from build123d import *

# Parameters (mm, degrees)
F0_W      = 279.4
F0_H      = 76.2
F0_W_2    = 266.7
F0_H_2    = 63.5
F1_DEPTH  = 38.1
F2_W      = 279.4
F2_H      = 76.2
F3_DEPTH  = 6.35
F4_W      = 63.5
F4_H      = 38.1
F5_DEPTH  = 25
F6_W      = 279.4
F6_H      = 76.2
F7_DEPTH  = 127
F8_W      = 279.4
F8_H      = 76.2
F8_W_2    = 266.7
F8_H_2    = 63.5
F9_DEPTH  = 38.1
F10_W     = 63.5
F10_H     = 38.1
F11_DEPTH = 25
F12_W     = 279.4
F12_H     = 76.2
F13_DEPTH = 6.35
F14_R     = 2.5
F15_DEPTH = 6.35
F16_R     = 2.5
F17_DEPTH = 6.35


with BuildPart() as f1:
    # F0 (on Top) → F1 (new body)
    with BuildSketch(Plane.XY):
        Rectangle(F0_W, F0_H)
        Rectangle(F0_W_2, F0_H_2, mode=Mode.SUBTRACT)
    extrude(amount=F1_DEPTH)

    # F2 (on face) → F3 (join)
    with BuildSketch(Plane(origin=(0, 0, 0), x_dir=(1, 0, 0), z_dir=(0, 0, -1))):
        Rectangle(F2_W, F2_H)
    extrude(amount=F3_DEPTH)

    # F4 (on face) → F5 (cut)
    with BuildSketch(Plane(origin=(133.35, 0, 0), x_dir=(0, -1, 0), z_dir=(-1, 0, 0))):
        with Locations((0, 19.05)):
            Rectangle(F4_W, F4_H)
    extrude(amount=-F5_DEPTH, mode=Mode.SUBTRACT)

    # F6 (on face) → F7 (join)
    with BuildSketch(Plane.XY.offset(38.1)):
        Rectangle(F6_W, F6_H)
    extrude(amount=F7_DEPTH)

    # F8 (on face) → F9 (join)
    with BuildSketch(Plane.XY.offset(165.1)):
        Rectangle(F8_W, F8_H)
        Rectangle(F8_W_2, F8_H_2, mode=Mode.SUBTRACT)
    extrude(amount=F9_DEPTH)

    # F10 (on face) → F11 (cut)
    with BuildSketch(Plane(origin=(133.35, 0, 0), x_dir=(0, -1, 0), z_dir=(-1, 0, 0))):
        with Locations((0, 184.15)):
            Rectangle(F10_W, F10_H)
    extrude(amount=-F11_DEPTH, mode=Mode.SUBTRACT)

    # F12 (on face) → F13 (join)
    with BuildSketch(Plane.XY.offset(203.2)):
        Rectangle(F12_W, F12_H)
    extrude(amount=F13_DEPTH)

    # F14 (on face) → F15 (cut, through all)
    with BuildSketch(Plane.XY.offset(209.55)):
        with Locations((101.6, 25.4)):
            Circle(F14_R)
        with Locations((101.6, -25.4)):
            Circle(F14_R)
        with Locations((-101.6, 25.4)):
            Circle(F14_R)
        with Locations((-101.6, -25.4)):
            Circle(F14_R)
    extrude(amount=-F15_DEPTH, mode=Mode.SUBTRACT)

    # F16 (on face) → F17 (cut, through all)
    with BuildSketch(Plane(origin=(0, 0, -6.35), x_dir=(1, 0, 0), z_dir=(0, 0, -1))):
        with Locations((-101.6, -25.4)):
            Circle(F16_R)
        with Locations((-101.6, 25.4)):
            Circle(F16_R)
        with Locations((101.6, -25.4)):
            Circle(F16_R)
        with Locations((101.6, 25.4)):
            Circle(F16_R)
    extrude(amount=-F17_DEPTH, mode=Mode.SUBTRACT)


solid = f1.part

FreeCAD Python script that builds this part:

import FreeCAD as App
import Part
import Sketcher

V = App.Vector
Q = App.Units.Quantity

doc = App.newDocument("Part")
body = doc.addObject("PartDesign::Body", "Body")

# Sketch on XY plane
sketch1 = body.newObject("Sketcher::SketchObject", "Sketch")
sketch1.AttachmentSupport = (doc.getObject("XY_Plane"), [""])
sketch1.MapMode = "FlatFace"
sketch1.addGeometry([
    Part.LineSegment(V(-140, 38, 0), V(-140, -38, 0)),  # 0
    Part.LineSegment(V(-140, -38, 0), V(140, -38, 0)),  # 1
    Part.LineSegment(V(140, -38, 0), V(140, 38, 0)),  # 2
    Part.LineSegment(V(140, 38, 0), V(-140, 38, 0)),  # 3
    Part.LineSegment(V(133, -32, 0), V(-133, -32, 0)),  # 4
    Part.LineSegment(V(-133, -32, 0), V(-133, 32, 0)),  # 5
    Part.LineSegment(V(-133, 32, 0), V(133, 32, 0)),  # 6
    Part.LineSegment(V(133, 32, 0), V(133, -32, 0)),  # 7
], False)
sketch1.addConstraint([
    Sketcher.Constraint("Coincident", 0, 2, 1, 1),
    Sketcher.Constraint("Coincident", 1, 2, 2, 1),
    Sketcher.Constraint("Coincident", 2, 2, 3, 1),
    Sketcher.Constraint("Coincident", 3, 2, 0, 1),
    Sketcher.Constraint("Coincident", 4, 2, 5, 1),
    Sketcher.Constraint("Coincident", 5, 2, 6, 1),
    Sketcher.Constraint("Coincident", 6, 2, 7, 1),
    Sketcher.Constraint("Coincident", 7, 2, 4, 1),
    Sketcher.Constraint("Vertical", 0),
    Sketcher.Constraint("Horizontal", 1),
    Sketcher.Constraint("Vertical", 2),
    Sketcher.Constraint("Horizontal", 3),
    Sketcher.Constraint("Horizontal", 4),
    Sketcher.Constraint("Vertical", 5),
    Sketcher.Constraint("Horizontal", 6),
    Sketcher.Constraint("Vertical", 7),
    Sketcher.Constraint("Symmetric", 0, 2, 2, 2, -1, 1),
    Sketcher.Constraint("Symmetric", 4, 2, 6, 2, -1, 1),
    Sketcher.Constraint("DistanceX", 1, 1, 1, 2, Q("11 in")),
    Sketcher.Constraint("DistanceY", 0, 2, 0, 1, Q("3 in")),
    Sketcher.Constraint("DistanceX", 4, 2, 4, 1, Q("10.5 in")),
    Sketcher.Constraint("DistanceY", 5, 1, 5, 2, Q("2.5 in")),
])
pad1 = body.newObject("PartDesign::Pad", "Pad")
pad1.Profile = sketch1
pad1.Length = Q("1.5 in")

# Sketch on XY plane
sketch2 = body.newObject("Sketcher::SketchObject", "Sketch001")
sketch2.AttachmentSupport = (doc.getObject("XY_Plane"), [""])
sketch2.MapMode = "FlatFace"
sketch2.addGeometry([
    Part.LineSegment(V(-140, -38, 0), V(-140, 38, 0)),
    Part.LineSegment(V(-140, 38, 0), V(140, 38, 0)),
    Part.LineSegment(V(140, 38, 0), V(140, -38, 0)),
    Part.LineSegment(V(140, -38, 0), V(-140, -38, 0)),
], False)
sketch2.addConstraint([
    Sketcher.Constraint("Coincident", 0, 2, 1, 1),
    Sketcher.Constraint("Coincident", 1, 2, 2, 1),
    Sketcher.Constraint("Coincident", 2, 2, 3, 1),
    Sketcher.Constraint("Coincident", 3, 2, 0, 1),
    Sketcher.Constraint("Vertical", 0),
    Sketcher.Constraint("Horizontal", 1),
    Sketcher.Constraint("Vertical", 2),
    Sketcher.Constraint("Horizontal", 3),
    Sketcher.Constraint("Symmetric", 0, 2, 2, 2, -1, 1),
    Sketcher.Constraint("DistanceX", 1, 1, 1, 2, Q("11 in")),
    Sketcher.Constraint("DistanceY", 0, 1, 0, 2, Q("3 in")),
])
pad2 = body.newObject("PartDesign::Pad", "Pad001")
pad2.Profile = sketch2
pad2.Length = Q("0.25 in")
pad2.Reversed = True

# Sketch on YZ plane
sketch3 = body.newObject("Sketcher::SketchObject", "Sketch002")
sketch3.AttachmentSupport = (doc.getObject("YZ_Plane"), [""])
sketch3.MapMode = "FlatFace"
sketch3.AttachmentOffset = App.Placement(V(0, 0, 5.25 * 25.4), App.Rotation())
sketch3.addGeometry([
    Part.LineSegment(V(32, 38, 0), V(32, 0, 0)),
    Part.LineSegment(V(32, 0, 0), V(-32, 0, 0)),
    Part.LineSegment(V(-32, 0, 0), V(-32, 38, 0)),
    Part.LineSegment(V(-32, 38, 0), V(32, 38, 0)),
], False)
sketch3.addConstraint([
    Sketcher.Constraint("Coincident", 0, 2, 1, 1),
    Sketcher.Constraint("Coincident", 1, 2, 2, 1),
    Sketcher.Constraint("Coincident", 2, 2, 3, 1),
    Sketcher.Constraint("Coincident", 3, 2, 0, 1),
    Sketcher.Constraint("Vertical", 0),
    Sketcher.Constraint("Horizontal", 1),
    Sketcher.Constraint("Vertical", 2),
    Sketcher.Constraint("Horizontal", 3),
    Sketcher.Constraint("Symmetric", 0, 2, 1, 2, -1, 1),
    Sketcher.Constraint("DistanceX", 1, 2, 1, 1, Q("2.5 in")),
    Sketcher.Constraint("DistanceY", 0, 2, 0, 1, Q("1.5 in")),
])
pocket1 = body.newObject("PartDesign::Pocket", "Pocket")
pocket1.Profile = sketch3
pocket1.Length = 25
pocket1.Reversed = True

# Sketch on XY plane
sketch4 = body.newObject("Sketcher::SketchObject", "Sketch003")
sketch4.AttachmentSupport = (doc.getObject("XY_Plane"), [""])
sketch4.MapMode = "FlatFace"
sketch4.AttachmentOffset = App.Placement(V(0, 0, 1.5 * 25.4), App.Rotation())
sketch4.addGeometry([
    Part.LineSegment(V(-140, 38, 0), V(-140, -38, 0)),
    Part.LineSegment(V(-140, -38, 0), V(140, -38, 0)),
    Part.LineSegment(V(140, -38, 0), V(140, 38, 0)),
    Part.LineSegment(V(140, 38, 0), V(-140, 38, 0)),
], False)
sketch4.addConstraint([
    Sketcher.Constraint("Coincident", 0, 2, 1, 1),
    Sketcher.Constraint("Coincident", 1, 2, 2, 1),
    Sketcher.Constraint("Coincident", 2, 2, 3, 1),
    Sketcher.Constraint("Coincident", 3, 2, 0, 1),
    Sketcher.Constraint("Vertical", 0),
    Sketcher.Constraint("Horizontal", 1),
    Sketcher.Constraint("Vertical", 2),
    Sketcher.Constraint("Horizontal", 3),
    Sketcher.Constraint("Symmetric", 0, 2, 2, 2, -1, 1),
    Sketcher.Constraint("DistanceX", 1, 1, 1, 2, Q("11 in")),
    Sketcher.Constraint("DistanceY", 0, 2, 0, 1, Q("3 in")),
])
pad3 = body.newObject("PartDesign::Pad", "Pad002")
pad3.Profile = sketch4
pad3.Length = Q("5 in")

# Sketch on XY plane
sketch5 = body.newObject("Sketcher::SketchObject", "Sketch004")
sketch5.AttachmentSupport = (doc.getObject("XY_Plane"), [""])
sketch5.MapMode = "FlatFace"
sketch5.AttachmentOffset = App.Placement(V(0, 0, 6.5 * 25.4), App.Rotation())
sketch5.addGeometry([
    Part.LineSegment(V(-140, 38, 0), V(-140, -38, 0)),  # 0
    Part.LineSegment(V(-140, -38, 0), V(140, -38, 0)),  # 1
    Part.LineSegment(V(140, -38, 0), V(140, 38, 0)),  # 2
    Part.LineSegment(V(140, 38, 0), V(-140, 38, 0)),  # 3
    Part.LineSegment(V(133, -32, 0), V(-133, -32, 0)),  # 4
    Part.LineSegment(V(-133, -32, 0), V(-133, 32, 0)),  # 5
    Part.LineSegment(V(-133, 32, 0), V(133, 32, 0)),  # 6
    Part.LineSegment(V(133, 32, 0), V(133, -32, 0)),  # 7
], False)
sketch5.addConstraint([
    Sketcher.Constraint("Coincident", 0, 2, 1, 1),
    Sketcher.Constraint("Coincident", 1, 2, 2, 1),
    Sketcher.Constraint("Coincident", 2, 2, 3, 1),
    Sketcher.Constraint("Coincident", 3, 2, 0, 1),
    Sketcher.Constraint("Coincident", 4, 2, 5, 1),
    Sketcher.Constraint("Coincident", 5, 2, 6, 1),
    Sketcher.Constraint("Coincident", 6, 2, 7, 1),
    Sketcher.Constraint("Coincident", 7, 2, 4, 1),
    Sketcher.Constraint("Vertical", 0),
    Sketcher.Constraint("Horizontal", 1),
    Sketcher.Constraint("Vertical", 2),
    Sketcher.Constraint("Horizontal", 3),
    Sketcher.Constraint("Horizontal", 4),
    Sketcher.Constraint("Vertical", 5),
    Sketcher.Constraint("Horizontal", 6),
    Sketcher.Constraint("Vertical", 7),
    Sketcher.Constraint("Symmetric", 0, 2, 2, 2, -1, 1),
    Sketcher.Constraint("Symmetric", 4, 2, 6, 2, -1, 1),
    Sketcher.Constraint("DistanceX", 1, 1, 1, 2, Q("11 in")),
    Sketcher.Constraint("DistanceY", 0, 2, 0, 1, Q("3 in")),
    Sketcher.Constraint("DistanceX", 4, 2, 4, 1, Q("10.5 in")),
    Sketcher.Constraint("DistanceY", 5, 1, 5, 2, Q("2.5 in")),
])
pad4 = body.newObject("PartDesign::Pad", "Pad003")
pad4.Profile = sketch5
pad4.Length = Q("1.5 in")

# Sketch on YZ plane
sketch6 = body.newObject("Sketcher::SketchObject", "Sketch005")
sketch6.AttachmentSupport = (doc.getObject("YZ_Plane"), [""])
sketch6.MapMode = "FlatFace"
sketch6.AttachmentOffset = App.Placement(V(0, 0, 5.25 * 25.4), App.Rotation())
sketch6.addGeometry([
    Part.LineSegment(V(32, 203, 0), V(32, 165, 0)),
    Part.LineSegment(V(32, 165, 0), V(-32, 165, 0)),
    Part.LineSegment(V(-32, 165, 0), V(-32, 203, 0)),
    Part.LineSegment(V(-32, 203, 0), V(32, 203, 0)),
], False)
sketch6.addConstraint([
    Sketcher.Constraint("Coincident", 0, 2, 1, 1),
    Sketcher.Constraint("Coincident", 1, 2, 2, 1),
    Sketcher.Constraint("Coincident", 2, 2, 3, 1),
    Sketcher.Constraint("Coincident", 3, 2, 0, 1),
    Sketcher.Constraint("Vertical", 0),
    Sketcher.Constraint("Horizontal", 1),
    Sketcher.Constraint("Vertical", 2),
    Sketcher.Constraint("Horizontal", 3),
    Sketcher.Constraint("DistanceX", 1, 2, 1, 1, Q("2.5 in")),
    Sketcher.Constraint("DistanceY", 0, 2, 0, 1, Q("1.5 in")),
    Sketcher.Constraint("DistanceY", -1, 1, 2, 2, Q("8 in")),
    Sketcher.Constraint("DistanceX", -1, 1, 0, 2, Q("1.25 in")),
])
pocket2 = body.newObject("PartDesign::Pocket", "Pocket001")
pocket2.Profile = sketch6
pocket2.Length = 25
pocket2.Reversed = True

# Sketch on XY plane
sketch7 = body.newObject("Sketcher::SketchObject", "Sketch006")
sketch7.AttachmentSupport = (doc.getObject("XY_Plane"), [""])
sketch7.MapMode = "FlatFace"
sketch7.AttachmentOffset = App.Placement(V(0, 0, 8 * 25.4), App.Rotation())
sketch7.addGeometry([
    Part.LineSegment(V(-140, 38, 0), V(-140, -38, 0)),
    Part.LineSegment(V(-140, -38, 0), V(140, -38, 0)),
    Part.LineSegment(V(140, -38, 0), V(140, 38, 0)),
    Part.LineSegment(V(140, 38, 0), V(-140, 38, 0)),
], False)
sketch7.addConstraint([
    Sketcher.Constraint("Coincident", 0, 2, 1, 1),
    Sketcher.Constraint("Coincident", 1, 2, 2, 1),
    Sketcher.Constraint("Coincident", 2, 2, 3, 1),
    Sketcher.Constraint("Coincident", 3, 2, 0, 1),
    Sketcher.Constraint("Vertical", 0),
    Sketcher.Constraint("Horizontal", 1),
    Sketcher.Constraint("Vertical", 2),
    Sketcher.Constraint("Horizontal", 3),
    Sketcher.Constraint("Symmetric", 0, 2, 2, 2, -1, 1),
    Sketcher.Constraint("DistanceX", 1, 1, 1, 2, Q("11 in")),
    Sketcher.Constraint("DistanceY", 0, 2, 0, 1, Q("3 in")),
])
pad5 = body.newObject("PartDesign::Pad", "Pad004")
pad5.Profile = sketch7
pad5.Length = Q("0.25 in")

# Sketch on XY plane
sketch8 = body.newObject("Sketcher::SketchObject", "Sketch007")
sketch8.AttachmentSupport = (doc.getObject("XY_Plane"), [""])
sketch8.MapMode = "FlatFace"
sketch8.AttachmentOffset = App.Placement(V(0, 0, 8.25 * 25.4), App.Rotation())
sketch8.addGeometry([
    Part.Circle(V(101.6, 25.4, 0), V(0, 0, 1), 2.5),
    Part.Circle(V(101.6, -25.4, 0), V(0, 0, 1), 2.5),
    Part.Circle(V(-101.6, 25.4, 0), V(0, 0, 1), 2.5),
    Part.Circle(V(-101.6, -25.4, 0), V(0, 0, 1), 2.5),
], False)
sketch8.addConstraint([
    Sketcher.Constraint("Equal", 0, 1),
    Sketcher.Constraint("Equal", 1, 2),
    Sketcher.Constraint("Equal", 2, 3),
    Sketcher.Constraint("Symmetric", 1, 3, 2, 3, -1, 1),
    Sketcher.Constraint("Symmetric", 0, 3, 3, 3, -1, 1),
    Sketcher.Constraint("Symmetric", 0, 3, 2, 3, -2),
    Sketcher.Constraint("DistanceX", -1, 1, 0, 3, Q("4 in")),
    Sketcher.Constraint("DistanceY", -1, 1, 0, 3, Q("1 in")),
    Sketcher.Constraint("Diameter", 0, Q("5 mm")),
])
pocket3 = body.newObject("PartDesign::Pocket", "Pocket002")
pocket3.Profile = sketch8
pocket3.Length = Q("0.25 in")

# Sketch on XY plane
sketch9 = body.newObject("Sketcher::SketchObject", "Sketch008")
sketch9.AttachmentSupport = (doc.getObject("XY_Plane"), [""])
sketch9.MapMode = "FlatFace"
sketch9.AttachmentOffset = App.Placement(V(0, 0, -0.25 * 25.4), App.Rotation())
sketch9.addGeometry([
    Part.Circle(V(-101.6, 25.4, 0), V(0, 0, 1), 2.5),
    Part.Circle(V(-101.6, -25.4, 0), V(0, 0, 1), 2.5),
    Part.Circle(V(101.6, 25.4, 0), V(0, 0, 1), 2.5),
    Part.Circle(V(101.6, -25.4, 0), V(0, 0, 1), 2.5),
], False)
sketch9.addConstraint([
    Sketcher.Constraint("Equal", 0, 1),
    Sketcher.Constraint("Equal", 1, 2),
    Sketcher.Constraint("Equal", 2, 3),
    Sketcher.Constraint("Symmetric", 1, 3, 2, 3, -1, 1),
    Sketcher.Constraint("Symmetric", 0, 3, 3, 3, -1, 1),
    Sketcher.Constraint("Symmetric", 0, 3, 2, 3, -2),
    Sketcher.Constraint("DistanceX", 0, 3, -1, 1, Q("4 in")),
    Sketcher.Constraint("DistanceY", -1, 1, 0, 3, Q("1 in")),
    Sketcher.Constraint("Diameter", 0, Q("5 mm")),
])
pocket4 = body.newObject("PartDesign::Pocket", "Pocket003")
pocket4.Profile = sketch9
pocket4.Length = Q("0.25 in")
pocket4.Reversed = True

doc.recompute()
